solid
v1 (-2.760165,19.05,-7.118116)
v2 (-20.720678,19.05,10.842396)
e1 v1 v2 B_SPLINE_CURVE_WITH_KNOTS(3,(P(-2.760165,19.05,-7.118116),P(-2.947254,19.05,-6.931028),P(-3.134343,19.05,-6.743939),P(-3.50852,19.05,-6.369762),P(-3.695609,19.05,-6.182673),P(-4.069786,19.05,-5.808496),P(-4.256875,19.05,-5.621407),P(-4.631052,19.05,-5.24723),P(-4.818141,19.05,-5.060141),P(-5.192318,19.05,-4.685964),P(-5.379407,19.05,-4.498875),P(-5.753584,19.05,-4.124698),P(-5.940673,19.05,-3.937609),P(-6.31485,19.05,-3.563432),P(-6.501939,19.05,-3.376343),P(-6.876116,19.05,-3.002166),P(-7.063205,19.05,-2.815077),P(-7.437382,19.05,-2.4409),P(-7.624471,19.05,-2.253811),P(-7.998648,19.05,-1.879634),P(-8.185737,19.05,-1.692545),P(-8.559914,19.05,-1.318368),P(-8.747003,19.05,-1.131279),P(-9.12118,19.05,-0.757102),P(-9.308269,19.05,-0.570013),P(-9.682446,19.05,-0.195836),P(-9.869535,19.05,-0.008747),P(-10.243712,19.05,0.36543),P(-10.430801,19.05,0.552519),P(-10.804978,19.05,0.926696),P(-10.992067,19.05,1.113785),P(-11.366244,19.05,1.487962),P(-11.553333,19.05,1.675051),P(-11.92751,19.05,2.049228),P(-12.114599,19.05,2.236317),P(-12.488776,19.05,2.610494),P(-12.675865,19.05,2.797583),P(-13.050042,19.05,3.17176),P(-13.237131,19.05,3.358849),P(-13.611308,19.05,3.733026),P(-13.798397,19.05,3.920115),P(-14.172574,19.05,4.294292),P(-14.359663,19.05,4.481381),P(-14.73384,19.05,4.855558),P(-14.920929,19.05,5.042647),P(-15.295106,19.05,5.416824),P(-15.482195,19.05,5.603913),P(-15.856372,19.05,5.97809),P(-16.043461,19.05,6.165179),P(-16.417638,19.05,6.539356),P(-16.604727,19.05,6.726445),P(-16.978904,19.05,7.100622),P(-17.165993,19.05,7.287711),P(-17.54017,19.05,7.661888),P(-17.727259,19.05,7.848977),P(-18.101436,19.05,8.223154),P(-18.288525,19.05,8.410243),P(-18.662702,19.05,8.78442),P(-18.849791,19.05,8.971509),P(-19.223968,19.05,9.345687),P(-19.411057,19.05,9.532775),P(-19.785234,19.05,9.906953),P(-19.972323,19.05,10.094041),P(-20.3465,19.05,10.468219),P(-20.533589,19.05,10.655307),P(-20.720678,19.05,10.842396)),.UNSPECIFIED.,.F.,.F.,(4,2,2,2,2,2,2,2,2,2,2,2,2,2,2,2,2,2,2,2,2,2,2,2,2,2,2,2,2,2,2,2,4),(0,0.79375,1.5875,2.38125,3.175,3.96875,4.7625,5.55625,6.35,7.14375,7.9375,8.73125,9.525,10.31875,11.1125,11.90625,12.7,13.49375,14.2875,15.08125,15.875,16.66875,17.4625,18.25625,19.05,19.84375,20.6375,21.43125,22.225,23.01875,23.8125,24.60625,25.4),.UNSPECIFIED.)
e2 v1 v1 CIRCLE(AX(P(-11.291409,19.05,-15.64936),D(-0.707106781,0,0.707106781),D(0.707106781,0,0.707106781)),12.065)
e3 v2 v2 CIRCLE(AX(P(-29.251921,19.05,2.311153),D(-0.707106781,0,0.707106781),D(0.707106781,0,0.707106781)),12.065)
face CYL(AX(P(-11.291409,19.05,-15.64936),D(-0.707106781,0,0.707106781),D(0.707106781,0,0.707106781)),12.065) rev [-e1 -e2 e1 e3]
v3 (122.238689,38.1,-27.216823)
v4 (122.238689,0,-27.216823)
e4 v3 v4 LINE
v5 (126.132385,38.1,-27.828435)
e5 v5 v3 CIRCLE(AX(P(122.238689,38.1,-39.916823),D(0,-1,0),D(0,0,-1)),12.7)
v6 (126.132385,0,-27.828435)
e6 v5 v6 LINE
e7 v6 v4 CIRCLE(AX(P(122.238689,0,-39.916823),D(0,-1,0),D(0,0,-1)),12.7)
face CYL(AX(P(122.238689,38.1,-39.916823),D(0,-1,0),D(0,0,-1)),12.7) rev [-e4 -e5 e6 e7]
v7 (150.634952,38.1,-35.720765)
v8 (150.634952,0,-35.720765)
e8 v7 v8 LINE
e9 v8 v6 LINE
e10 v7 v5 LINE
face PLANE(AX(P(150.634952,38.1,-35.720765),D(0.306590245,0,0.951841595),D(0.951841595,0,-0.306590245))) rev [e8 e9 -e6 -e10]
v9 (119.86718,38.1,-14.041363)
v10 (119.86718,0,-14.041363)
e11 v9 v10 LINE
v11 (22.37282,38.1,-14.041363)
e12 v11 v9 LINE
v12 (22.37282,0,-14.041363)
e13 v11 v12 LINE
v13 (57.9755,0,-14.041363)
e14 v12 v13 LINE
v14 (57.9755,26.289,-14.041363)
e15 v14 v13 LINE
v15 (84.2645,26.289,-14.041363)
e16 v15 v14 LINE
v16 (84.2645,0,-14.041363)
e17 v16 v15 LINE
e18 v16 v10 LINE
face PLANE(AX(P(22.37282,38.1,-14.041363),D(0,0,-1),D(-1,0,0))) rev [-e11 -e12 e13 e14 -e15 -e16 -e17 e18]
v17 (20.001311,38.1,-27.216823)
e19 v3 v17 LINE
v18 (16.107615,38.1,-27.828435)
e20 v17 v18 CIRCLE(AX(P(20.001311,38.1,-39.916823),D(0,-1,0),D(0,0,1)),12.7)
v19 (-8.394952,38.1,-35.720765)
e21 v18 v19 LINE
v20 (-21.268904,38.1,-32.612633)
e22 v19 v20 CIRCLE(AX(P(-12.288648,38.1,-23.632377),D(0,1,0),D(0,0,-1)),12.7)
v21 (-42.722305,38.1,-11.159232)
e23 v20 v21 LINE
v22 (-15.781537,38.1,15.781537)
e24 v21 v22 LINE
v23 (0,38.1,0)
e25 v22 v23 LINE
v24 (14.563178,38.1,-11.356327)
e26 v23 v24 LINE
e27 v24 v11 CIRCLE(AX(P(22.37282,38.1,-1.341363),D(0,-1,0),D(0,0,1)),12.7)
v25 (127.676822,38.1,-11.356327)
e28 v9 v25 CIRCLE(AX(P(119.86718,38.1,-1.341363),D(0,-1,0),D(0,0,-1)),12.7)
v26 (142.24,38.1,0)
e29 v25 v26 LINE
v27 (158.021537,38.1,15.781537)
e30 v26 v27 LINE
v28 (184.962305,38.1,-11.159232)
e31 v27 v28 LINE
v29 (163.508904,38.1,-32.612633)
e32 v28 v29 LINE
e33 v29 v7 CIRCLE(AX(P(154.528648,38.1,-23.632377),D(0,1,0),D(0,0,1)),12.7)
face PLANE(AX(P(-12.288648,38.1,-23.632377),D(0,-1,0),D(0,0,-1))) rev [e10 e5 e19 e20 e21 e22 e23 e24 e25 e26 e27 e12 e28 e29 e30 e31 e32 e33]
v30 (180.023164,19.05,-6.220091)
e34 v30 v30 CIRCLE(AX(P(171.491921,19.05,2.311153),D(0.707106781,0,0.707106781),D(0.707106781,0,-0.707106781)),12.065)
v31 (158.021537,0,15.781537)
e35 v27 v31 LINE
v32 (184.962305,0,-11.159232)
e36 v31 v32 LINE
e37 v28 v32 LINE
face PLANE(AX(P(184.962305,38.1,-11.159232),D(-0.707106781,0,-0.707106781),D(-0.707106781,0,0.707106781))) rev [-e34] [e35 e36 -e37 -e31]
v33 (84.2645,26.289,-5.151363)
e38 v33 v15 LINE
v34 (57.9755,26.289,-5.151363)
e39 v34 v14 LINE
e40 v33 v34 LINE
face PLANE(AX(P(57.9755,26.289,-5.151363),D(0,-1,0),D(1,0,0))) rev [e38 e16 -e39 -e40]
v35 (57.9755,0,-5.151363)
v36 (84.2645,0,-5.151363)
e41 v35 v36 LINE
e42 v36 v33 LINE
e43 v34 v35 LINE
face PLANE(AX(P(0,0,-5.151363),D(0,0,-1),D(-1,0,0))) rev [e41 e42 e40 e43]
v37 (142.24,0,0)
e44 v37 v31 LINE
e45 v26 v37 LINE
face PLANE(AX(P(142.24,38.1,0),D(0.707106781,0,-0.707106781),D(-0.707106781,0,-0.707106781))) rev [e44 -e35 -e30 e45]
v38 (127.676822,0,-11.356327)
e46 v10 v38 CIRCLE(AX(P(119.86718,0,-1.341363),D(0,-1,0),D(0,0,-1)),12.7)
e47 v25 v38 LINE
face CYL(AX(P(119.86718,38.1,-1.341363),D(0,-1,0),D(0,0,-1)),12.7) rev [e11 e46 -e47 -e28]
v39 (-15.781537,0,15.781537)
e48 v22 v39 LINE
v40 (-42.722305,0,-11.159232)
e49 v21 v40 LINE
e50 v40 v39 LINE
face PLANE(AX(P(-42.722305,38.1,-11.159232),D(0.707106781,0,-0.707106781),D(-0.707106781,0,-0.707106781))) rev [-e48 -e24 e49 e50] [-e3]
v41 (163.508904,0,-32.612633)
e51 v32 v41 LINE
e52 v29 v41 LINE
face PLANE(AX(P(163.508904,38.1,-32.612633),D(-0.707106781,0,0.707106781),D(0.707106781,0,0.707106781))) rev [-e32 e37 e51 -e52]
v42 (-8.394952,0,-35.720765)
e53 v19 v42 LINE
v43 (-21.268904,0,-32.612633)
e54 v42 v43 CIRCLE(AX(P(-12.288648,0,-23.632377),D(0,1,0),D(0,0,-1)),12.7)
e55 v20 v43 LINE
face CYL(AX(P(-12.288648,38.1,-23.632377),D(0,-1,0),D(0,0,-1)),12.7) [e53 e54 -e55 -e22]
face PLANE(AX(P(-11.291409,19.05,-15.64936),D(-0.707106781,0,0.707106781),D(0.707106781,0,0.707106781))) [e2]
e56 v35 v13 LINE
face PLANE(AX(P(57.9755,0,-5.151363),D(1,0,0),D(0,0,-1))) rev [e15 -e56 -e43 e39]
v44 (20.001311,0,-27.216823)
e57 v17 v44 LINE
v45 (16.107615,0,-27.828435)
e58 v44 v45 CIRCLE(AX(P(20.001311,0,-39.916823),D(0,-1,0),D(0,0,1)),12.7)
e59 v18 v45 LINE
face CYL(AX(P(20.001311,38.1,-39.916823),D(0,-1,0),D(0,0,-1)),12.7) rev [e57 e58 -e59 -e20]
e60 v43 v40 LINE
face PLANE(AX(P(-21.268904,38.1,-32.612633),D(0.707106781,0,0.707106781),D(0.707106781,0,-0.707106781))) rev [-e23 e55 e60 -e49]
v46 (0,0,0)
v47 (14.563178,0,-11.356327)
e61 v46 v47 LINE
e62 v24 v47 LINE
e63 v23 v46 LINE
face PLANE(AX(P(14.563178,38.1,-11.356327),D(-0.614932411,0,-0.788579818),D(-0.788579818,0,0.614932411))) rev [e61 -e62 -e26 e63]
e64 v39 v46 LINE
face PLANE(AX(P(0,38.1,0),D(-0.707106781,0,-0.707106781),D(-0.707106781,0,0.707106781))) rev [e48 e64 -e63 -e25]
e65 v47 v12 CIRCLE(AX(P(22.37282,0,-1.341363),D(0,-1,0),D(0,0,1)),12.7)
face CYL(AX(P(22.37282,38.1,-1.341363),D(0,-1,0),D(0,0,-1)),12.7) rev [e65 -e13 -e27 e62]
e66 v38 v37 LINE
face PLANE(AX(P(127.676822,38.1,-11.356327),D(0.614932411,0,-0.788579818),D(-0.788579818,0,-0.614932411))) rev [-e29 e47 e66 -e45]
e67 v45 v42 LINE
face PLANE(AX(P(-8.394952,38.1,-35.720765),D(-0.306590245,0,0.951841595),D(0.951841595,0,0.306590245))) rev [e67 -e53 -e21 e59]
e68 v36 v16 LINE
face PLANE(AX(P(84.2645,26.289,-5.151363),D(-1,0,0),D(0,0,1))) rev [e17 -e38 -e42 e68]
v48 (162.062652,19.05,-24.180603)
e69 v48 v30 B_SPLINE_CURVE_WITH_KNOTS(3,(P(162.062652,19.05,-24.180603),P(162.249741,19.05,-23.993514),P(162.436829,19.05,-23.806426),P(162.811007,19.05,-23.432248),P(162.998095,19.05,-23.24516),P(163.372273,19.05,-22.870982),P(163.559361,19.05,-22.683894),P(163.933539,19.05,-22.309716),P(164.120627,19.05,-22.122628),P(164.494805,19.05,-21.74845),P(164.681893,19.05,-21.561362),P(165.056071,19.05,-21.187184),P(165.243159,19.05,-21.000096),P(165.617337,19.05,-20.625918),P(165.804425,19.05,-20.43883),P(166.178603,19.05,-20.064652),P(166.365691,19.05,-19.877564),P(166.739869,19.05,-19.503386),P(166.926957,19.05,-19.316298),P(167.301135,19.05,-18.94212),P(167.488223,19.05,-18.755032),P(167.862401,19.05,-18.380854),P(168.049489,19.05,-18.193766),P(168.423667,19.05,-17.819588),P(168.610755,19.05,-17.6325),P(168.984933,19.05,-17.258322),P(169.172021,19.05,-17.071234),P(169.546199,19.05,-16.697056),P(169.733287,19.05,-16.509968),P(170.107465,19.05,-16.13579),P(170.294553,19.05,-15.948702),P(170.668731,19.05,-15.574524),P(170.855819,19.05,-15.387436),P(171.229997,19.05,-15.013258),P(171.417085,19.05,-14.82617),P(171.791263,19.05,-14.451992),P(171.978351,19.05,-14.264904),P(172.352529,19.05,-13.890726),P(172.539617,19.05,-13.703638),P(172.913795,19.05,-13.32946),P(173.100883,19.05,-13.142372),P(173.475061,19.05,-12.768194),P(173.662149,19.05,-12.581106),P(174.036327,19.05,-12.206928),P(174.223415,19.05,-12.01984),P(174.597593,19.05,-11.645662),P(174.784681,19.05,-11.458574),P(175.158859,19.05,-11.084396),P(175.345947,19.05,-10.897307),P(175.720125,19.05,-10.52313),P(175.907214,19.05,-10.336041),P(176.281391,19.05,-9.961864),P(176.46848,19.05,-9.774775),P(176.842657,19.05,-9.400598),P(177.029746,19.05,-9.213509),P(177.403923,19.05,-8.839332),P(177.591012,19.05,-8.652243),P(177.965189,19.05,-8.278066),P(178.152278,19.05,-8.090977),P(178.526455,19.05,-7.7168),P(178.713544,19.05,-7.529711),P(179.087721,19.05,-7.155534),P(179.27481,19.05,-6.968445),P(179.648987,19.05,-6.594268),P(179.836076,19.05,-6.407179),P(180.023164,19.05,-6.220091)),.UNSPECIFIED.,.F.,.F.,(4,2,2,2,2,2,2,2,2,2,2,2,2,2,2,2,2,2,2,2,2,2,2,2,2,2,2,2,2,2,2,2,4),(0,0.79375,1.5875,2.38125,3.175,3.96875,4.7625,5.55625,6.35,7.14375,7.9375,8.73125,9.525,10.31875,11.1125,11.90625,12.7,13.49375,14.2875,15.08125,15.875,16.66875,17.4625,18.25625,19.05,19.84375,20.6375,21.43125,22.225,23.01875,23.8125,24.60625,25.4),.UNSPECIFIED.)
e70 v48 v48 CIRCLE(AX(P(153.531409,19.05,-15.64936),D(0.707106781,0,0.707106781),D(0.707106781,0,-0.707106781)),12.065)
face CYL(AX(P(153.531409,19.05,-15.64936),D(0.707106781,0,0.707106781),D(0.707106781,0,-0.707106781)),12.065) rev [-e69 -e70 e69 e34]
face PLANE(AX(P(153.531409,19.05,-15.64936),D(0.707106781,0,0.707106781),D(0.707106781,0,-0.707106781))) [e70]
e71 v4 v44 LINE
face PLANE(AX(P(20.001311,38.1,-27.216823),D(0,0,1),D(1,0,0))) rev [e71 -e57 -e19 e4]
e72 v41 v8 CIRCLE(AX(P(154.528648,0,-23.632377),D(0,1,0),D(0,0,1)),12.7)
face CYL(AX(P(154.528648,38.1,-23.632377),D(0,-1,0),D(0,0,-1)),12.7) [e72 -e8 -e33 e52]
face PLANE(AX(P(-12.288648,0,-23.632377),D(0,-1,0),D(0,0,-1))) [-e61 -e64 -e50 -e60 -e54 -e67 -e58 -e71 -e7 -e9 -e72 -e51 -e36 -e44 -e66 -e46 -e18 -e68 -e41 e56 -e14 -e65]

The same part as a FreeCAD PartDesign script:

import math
import FreeCAD as App
import Part
import Sketcher
from FreeCAD import Vector
Q = App.Units.Quantity

doc = App.newDocument("Part")
body = doc.addObject("PartDesign::Body", "Body")

# Sketch on XZ plane
sketch1 = doc.addObject("Sketcher::SketchObject", "Sketch")
body.addObject(sketch1)
sketch1.AttachmentSupport = (doc.XZ_Plane, [""])
sketch1.MapMode = "FlatFace"
sketch1.addGeometry([
    Part.LineSegment(Vector(16.1, -27.8, 0), Vector(-8.4, -35.7, 0)),  # 0
    Part.ArcOfCircle(Part.Circle(Vector(-12.3, -23.6, 0), Vector(0, 0, 1), 12.7), math.radians(-135), math.radians(-72)),  # 1
    Part.LineSegment(Vector(-21.3, -32.6, 0), Vector(-42.7, -11.2, 0)),  # 2
    Part.LineSegment(Vector(-42.7, -11.2, 0), Vector(-15.8, 15.8, 0)),  # 3
    Part.LineSegment(Vector(-15.8, 15.8, 0), Vector(0, 0, 0)),  # 4
    Part.LineSegment(Vector(0, 0, 0), Vector(14.6, -11.4, 0)),  # 5
    Part.ArcOfCircle(Part.Circle(Vector(22.4, -1.3, 0), Vector(0, 0, 1), 12.7), math.radians(-128), math.radians(-90)),  # 6
    Part.LineSegment(Vector(22.4, -14, 0), Vector(119.9, -14, 0)),  # 7
    Part.ArcOfCircle(Part.Circle(Vector(119.9, -1.3, 0), Vector(0, 0, 1), 12.7), math.radians(-90), math.radians(-52)),  # 8
    Part.LineSegment(Vector(127.7, -11.4, 0), Vector(142.2, 0, 0)),  # 9
    Part.LineSegment(Vector(142.2, 0, 0), Vector(158, 15.8, 0)),  # 10
    Part.LineSegment(Vector(158, 15.8, 0), Vector(185, -11.2, 0)),  # 11
    Part.LineSegment(Vector(185, -11.2, 0), Vector(163.5, -32.6, 0)),  # 12
    Part.ArcOfCircle(Part.Circle(Vector(154.5, -23.6, 0), Vector(0, 0, 1), 12.7), math.radians(-108), math.radians(-45)),  # 13
    Part.LineSegment(Vector(150.6, -35.7, 0), Vector(126.1, -27.8, 0)),  # 14
    Part.ArcOfCircle(Part.Circle(Vector(122.2, -39.9, 0), Vector(0, 0, 1), 12.7), math.radians(72.15), math.radians(90)),  # 15
    Part.LineSegment(Vector(122.2, -27.2, 0), Vector(20, -27.2, 0)),  # 16
    Part.ArcOfCircle(Part.Circle(Vector(20, -39.9, 0), Vector(0, 0, 1), 12.7), math.radians(90), math.radians(107.85)),  # 17
], False)
sketch1.addConstraint([
    Sketcher.Constraint("Tangent", 0, 2, 1, 2),
    Sketcher.Constraint("Tangent", 1, 1, 2, 1),
    Sketcher.Constraint("Coincident", 2, 2, 3, 1),
    Sketcher.Constraint("Coincident", 3, 2, 4, 1),
    Sketcher.Constraint("Coincident", 4, 2, 5, 1),
    Sketcher.Constraint("Tangent", 5, 2, 6, 1),
    Sketcher.Constraint("Tangent", 6, 2, 7, 1),
    Sketcher.Constraint("Tangent", 7, 2, 8, 1),
    Sketcher.Constraint("Tangent", 8, 2, 9, 1),
    Sketcher.Constraint("Coincident", 9, 2, 10, 1),
    Sketcher.Constraint("Coincident", 10, 2, 11, 1),
    Sketcher.Constraint("Coincident", 11, 2, 12, 1),
    Sketcher.Constraint("Tangent", 12, 2, 13, 2),
    Sketcher.Constraint("Tangent", 13, 1, 14, 1),
    Sketcher.Constraint("Tangent", 14, 2, 15, 1),
    Sketcher.Constraint("Tangent", 15, 2, 16, 1),
    Sketcher.Constraint("Tangent", 16, 2, 17, 1),
    Sketcher.Constraint("Tangent", 17, 2, 0, 1),
    Sketcher.Constraint("Horizontal", 7),
    Sketcher.Constraint("Horizontal", 16),
    Sketcher.Constraint("Coincident", 4, 2, -1, 1),
    Sketcher.Constraint("Equal", 1, 6),
    Sketcher.Constraint("Equal", 6, 8),
    Sketcher.Constraint("Equal", 8, 13),
    Sketcher.Constraint("Equal", 13, 15),
    Sketcher.Constraint("Equal", 15, 17),
    Sketcher.Constraint("PointOnObject", 9, 2, -1),
    Sketcher.Constraint("Perpendicular", 2, 3),
    Sketcher.Constraint("Perpendicular", 3, 4),
    Sketcher.Constraint("Perpendicular", 4, 10),
    Sketcher.Constraint("Perpendicular", 10, 11),
    Sketcher.Constraint("Perpendicular", 11, 12),
    Sketcher.Constraint("Horizontal", 1, 3, 13, 3),
    Sketcher.Constraint("Horizontal", 5, 2, 8, 2),
    Sketcher.Constraint("Horizontal", 3, 2, 10, 2),
    Sketcher.Constraint("Horizontal", 2, 2, 11, 2),
    Sketcher.Constraint("Horizontal", 1, 1, 12, 2),
    Sketcher.Constraint("Horizontal", 0, 2, 13, 1),
    Sketcher.Constraint("Radius", 1, Q("0.5 in")),
    Sketcher.Constraint("Distance", 3, Q("1.5 in")),
    Sketcher.Constraint("DistanceX", -1, 1, 9, 2, Q("5.6 in")),
    Sketcher.Constraint("DistanceX", 7, 1, 7, 2, 97.49436),
    Sketcher.Constraint("DistanceX", 16, 2, 16, 1, 102.237379),
    Sketcher.Constraint("DistanceY", 0, 2, 6, 3, 34.379401),
    Sketcher.Constraint("DistanceX", 2, 2, 1, 1, 21.453401),
    Sketcher.Constraint("DistanceY", 6, 3, 3, 2, 17.1229),
    Sketcher.Constraint("DistanceX", 6, 2, 8, 2, 105.304002),
])
pad1 = doc.addObject("PartDesign::Pad", "Pad")
body.addObject(pad1)
pad1.Profile = sketch1
pad1.Length = Q("1.5 in")
pad1.Reversed = True

# Sketch on an angled plane
sketch2 = doc.addObject("Sketcher::SketchObject", "Sketch001")
body.addObject(sketch2)
sketch2.Placement = App.Placement(Vector(-15.781537, 0, 15.781537), App.Rotation(Vector(0.707106781, 0, 0.707106781), Vector(0, 0.999999999, 0), Vector(-0.707106781, 0, 0.707106781), "ZXY"))
sketch2.addGeometry(Part.Circle(Vector(-19, 19, 0), Vector(0, 0, 1), 12), False)
sketch2.addConstraint([
    Sketcher.Constraint("Diameter", 0, Q("0.95 in")),
    Sketcher.Constraint("DistanceX", 0, 3, -1, 1, Q("0.75 in")),
    Sketcher.Constraint("DistanceY", -1, 1, 0, 3, Q("0.75 in")),
])
pocket1 = doc.addObject("PartDesign::Pocket", "Pocket")
body.addObject(pocket1)
pocket1.Profile = sketch2
pocket1.Length = Q("1 in")

# Sketch on an angled plane
sketch3 = doc.addObject("Sketcher::SketchObject", "Sketch002")
body.addObject(sketch3)
sketch3.Placement = App.Placement(Vector(86.901537, 0, 86.901537), App.Rotation(Vector(0.707106781, 0, -0.707106781), Vector(0, 0.999999999, 0), Vector(0.707106781, 0, 0.707106781), "ZXY"))
sketch3.addGeometry(Part.Circle(Vector(120, 19, 0), Vector(0, 0, 1), 12), False)
sketch3.addConstraint([
    Sketcher.Constraint("Diameter", 0, Q("0.95 in")),
    Sketcher.Constraint("DistanceY", -1, 1, 0, 3, Q("0.75 in")),
    Sketcher.Constraint("DistanceX", -1, 1, 0, 3, 119.628868),
])
pocket2 = doc.addObject("PartDesign::Pocket", "Pocket001")
body.addObject(pocket2)
pocket2.Profile = sketch3
pocket2.Length = Q("1 in")

# Sketch on XY plane
sketch4 = doc.addObject("Sketcher::SketchObject", "Sketch003")
body.addObject(sketch4)
sketch4.AttachmentSupport = (doc.XY_Plane, [""])
sketch4.MapMode = "FlatFace"
sketch4.AttachmentOffset = App.Placement(Vector(0, 0, -14.041363), App.Rotation())
sketch4.addGeometry([
    Part.LineSegment(Vector(58, 26, 0), Vector(58, 0, 0)),
    Part.LineSegment(Vector(58, 0, 0), Vector(84, 0, 0)),
    Part.LineSegment(Vector(84, 0, 0), Vector(84, 26, 0)),
    Part.LineSegment(Vector(84, 26, 0), Vector(58, 26, 0)),
], False)
sketch4.addConstraint([
    Sketcher.Constraint("Coincident", 0, 2, 1, 1),
    Sketcher.Constraint("Coincident", 1, 2, 2, 1),
    Sketcher.Constraint("Coincident", 2, 2, 3, 1),
    Sketcher.Constraint("Coincident", 3, 2, 0, 1),
    Sketcher.Constraint("Vertical", 0),
    Sketcher.Constraint("Horizontal", 1),
    Sketcher.Constraint("Vertical", 2),
    Sketcher.Constraint("Horizontal", 3),
    Sketcher.Constraint("PointOnObject", 0, 2, -1),
    Sketcher.Constraint("Equal", 3, 0),
    Sketcher.Constraint("DistanceX", 1, 1, 1, 2, Q("1.035 in")),
    Sketcher.Constraint("DistanceX", -1, 1, 0, 2, Q("2.2825 in")),
])
pad2 = doc.addObject("PartDesign::Pad", "Pad001")
body.addObject(pad2)
pad2.Profile = sketch4
pad2.Length = Q("0.35 in")

doc.recompute()
